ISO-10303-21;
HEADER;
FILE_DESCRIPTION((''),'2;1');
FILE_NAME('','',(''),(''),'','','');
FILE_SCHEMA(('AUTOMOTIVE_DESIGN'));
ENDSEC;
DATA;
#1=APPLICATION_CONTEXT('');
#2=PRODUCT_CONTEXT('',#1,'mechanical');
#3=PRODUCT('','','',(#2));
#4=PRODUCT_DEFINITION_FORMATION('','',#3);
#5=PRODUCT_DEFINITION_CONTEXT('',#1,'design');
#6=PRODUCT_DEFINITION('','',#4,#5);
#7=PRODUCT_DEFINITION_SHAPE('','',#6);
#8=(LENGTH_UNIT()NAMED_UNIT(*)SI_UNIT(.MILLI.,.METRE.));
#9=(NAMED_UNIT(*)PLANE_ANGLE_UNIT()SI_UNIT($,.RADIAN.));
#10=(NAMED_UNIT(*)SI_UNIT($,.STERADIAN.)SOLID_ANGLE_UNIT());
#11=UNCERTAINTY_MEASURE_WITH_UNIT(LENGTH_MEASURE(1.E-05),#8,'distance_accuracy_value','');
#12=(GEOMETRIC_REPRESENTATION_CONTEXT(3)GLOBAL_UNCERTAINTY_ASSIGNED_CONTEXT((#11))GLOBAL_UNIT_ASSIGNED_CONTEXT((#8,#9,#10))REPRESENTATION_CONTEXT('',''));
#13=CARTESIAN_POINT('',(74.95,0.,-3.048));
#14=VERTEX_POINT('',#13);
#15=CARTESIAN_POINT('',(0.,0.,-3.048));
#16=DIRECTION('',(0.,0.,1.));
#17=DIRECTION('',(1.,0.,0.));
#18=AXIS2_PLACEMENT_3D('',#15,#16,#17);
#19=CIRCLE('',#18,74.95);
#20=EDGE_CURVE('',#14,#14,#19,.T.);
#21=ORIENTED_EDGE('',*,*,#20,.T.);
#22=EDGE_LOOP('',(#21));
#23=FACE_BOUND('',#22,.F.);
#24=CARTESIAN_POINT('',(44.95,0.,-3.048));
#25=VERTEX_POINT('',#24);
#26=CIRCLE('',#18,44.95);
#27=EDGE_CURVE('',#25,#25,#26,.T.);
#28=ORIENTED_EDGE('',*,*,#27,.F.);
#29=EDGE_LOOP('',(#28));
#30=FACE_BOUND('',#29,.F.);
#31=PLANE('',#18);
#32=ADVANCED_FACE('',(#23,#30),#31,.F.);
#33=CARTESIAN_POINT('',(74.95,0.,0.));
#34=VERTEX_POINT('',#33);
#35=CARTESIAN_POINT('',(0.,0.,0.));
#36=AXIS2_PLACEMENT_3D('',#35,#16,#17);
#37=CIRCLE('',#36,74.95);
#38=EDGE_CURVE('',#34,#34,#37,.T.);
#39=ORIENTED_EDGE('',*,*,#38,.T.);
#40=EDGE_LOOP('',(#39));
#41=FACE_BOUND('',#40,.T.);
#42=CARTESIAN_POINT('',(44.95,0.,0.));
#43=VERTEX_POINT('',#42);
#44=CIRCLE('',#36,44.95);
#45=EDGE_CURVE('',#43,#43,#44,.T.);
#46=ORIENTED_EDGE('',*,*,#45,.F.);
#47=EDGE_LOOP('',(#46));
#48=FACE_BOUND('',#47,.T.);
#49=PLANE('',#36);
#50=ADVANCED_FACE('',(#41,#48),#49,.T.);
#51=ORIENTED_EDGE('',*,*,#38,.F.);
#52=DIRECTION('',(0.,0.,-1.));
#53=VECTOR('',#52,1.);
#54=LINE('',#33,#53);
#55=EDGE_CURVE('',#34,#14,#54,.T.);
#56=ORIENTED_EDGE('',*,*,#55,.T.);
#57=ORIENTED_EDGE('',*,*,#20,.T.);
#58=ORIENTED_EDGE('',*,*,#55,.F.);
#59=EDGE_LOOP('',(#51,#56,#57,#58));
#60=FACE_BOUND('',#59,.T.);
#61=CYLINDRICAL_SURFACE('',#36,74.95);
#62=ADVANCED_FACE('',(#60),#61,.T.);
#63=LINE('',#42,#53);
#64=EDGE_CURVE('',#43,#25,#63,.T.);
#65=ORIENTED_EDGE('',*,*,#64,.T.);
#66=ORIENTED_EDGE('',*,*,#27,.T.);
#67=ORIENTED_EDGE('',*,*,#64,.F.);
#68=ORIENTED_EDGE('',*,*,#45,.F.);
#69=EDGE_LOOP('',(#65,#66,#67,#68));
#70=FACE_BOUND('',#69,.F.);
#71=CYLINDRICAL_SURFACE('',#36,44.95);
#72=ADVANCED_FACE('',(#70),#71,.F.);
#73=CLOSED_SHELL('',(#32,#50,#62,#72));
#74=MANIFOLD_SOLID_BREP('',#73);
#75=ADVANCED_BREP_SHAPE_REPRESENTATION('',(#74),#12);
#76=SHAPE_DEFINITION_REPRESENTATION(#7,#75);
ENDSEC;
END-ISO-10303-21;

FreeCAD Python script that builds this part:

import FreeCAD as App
import Part
import Sketcher
Q = App.Units.Quantity

doc = App.newDocument("Part")
body = doc.addObject("PartDesign::Body", "Body")

# Sketch on XY plane
sketch1 = doc.addObject("Sketcher::SketchObject", "Sketch")
body.addObject(sketch1)
sketch1.AttachmentSupport = (doc.XY_Plane, [""])
sketch1.MapMode = "FlatFace"
sketch1.addGeometry([
    Part.Circle(App.Vector(0, 0, 0), App.Vector(0, 0, 1), 74.95),
    Part.Circle(App.Vector(0, 0, 0), App.Vector(0, 0, 1), 44.95),
], False)
sketch1.addConstraint([
    Sketcher.Constraint("Coincident", 0, 3, -1, 1),
    Sketcher.Constraint("Coincident", 1, 3, -1, 1),
    Sketcher.Constraint("Diameter", 0, Q("149.9 mm")),
    Sketcher.Constraint("Diameter", 1, Q("89.9 mm")),
])
pad1 = doc.addObject("PartDesign::Pad", "Pad")
body.addObject(pad1)
pad1.Profile = sketch1
pad1.Length = 3.048
pad1.Reversed = True

doc.recompute()
